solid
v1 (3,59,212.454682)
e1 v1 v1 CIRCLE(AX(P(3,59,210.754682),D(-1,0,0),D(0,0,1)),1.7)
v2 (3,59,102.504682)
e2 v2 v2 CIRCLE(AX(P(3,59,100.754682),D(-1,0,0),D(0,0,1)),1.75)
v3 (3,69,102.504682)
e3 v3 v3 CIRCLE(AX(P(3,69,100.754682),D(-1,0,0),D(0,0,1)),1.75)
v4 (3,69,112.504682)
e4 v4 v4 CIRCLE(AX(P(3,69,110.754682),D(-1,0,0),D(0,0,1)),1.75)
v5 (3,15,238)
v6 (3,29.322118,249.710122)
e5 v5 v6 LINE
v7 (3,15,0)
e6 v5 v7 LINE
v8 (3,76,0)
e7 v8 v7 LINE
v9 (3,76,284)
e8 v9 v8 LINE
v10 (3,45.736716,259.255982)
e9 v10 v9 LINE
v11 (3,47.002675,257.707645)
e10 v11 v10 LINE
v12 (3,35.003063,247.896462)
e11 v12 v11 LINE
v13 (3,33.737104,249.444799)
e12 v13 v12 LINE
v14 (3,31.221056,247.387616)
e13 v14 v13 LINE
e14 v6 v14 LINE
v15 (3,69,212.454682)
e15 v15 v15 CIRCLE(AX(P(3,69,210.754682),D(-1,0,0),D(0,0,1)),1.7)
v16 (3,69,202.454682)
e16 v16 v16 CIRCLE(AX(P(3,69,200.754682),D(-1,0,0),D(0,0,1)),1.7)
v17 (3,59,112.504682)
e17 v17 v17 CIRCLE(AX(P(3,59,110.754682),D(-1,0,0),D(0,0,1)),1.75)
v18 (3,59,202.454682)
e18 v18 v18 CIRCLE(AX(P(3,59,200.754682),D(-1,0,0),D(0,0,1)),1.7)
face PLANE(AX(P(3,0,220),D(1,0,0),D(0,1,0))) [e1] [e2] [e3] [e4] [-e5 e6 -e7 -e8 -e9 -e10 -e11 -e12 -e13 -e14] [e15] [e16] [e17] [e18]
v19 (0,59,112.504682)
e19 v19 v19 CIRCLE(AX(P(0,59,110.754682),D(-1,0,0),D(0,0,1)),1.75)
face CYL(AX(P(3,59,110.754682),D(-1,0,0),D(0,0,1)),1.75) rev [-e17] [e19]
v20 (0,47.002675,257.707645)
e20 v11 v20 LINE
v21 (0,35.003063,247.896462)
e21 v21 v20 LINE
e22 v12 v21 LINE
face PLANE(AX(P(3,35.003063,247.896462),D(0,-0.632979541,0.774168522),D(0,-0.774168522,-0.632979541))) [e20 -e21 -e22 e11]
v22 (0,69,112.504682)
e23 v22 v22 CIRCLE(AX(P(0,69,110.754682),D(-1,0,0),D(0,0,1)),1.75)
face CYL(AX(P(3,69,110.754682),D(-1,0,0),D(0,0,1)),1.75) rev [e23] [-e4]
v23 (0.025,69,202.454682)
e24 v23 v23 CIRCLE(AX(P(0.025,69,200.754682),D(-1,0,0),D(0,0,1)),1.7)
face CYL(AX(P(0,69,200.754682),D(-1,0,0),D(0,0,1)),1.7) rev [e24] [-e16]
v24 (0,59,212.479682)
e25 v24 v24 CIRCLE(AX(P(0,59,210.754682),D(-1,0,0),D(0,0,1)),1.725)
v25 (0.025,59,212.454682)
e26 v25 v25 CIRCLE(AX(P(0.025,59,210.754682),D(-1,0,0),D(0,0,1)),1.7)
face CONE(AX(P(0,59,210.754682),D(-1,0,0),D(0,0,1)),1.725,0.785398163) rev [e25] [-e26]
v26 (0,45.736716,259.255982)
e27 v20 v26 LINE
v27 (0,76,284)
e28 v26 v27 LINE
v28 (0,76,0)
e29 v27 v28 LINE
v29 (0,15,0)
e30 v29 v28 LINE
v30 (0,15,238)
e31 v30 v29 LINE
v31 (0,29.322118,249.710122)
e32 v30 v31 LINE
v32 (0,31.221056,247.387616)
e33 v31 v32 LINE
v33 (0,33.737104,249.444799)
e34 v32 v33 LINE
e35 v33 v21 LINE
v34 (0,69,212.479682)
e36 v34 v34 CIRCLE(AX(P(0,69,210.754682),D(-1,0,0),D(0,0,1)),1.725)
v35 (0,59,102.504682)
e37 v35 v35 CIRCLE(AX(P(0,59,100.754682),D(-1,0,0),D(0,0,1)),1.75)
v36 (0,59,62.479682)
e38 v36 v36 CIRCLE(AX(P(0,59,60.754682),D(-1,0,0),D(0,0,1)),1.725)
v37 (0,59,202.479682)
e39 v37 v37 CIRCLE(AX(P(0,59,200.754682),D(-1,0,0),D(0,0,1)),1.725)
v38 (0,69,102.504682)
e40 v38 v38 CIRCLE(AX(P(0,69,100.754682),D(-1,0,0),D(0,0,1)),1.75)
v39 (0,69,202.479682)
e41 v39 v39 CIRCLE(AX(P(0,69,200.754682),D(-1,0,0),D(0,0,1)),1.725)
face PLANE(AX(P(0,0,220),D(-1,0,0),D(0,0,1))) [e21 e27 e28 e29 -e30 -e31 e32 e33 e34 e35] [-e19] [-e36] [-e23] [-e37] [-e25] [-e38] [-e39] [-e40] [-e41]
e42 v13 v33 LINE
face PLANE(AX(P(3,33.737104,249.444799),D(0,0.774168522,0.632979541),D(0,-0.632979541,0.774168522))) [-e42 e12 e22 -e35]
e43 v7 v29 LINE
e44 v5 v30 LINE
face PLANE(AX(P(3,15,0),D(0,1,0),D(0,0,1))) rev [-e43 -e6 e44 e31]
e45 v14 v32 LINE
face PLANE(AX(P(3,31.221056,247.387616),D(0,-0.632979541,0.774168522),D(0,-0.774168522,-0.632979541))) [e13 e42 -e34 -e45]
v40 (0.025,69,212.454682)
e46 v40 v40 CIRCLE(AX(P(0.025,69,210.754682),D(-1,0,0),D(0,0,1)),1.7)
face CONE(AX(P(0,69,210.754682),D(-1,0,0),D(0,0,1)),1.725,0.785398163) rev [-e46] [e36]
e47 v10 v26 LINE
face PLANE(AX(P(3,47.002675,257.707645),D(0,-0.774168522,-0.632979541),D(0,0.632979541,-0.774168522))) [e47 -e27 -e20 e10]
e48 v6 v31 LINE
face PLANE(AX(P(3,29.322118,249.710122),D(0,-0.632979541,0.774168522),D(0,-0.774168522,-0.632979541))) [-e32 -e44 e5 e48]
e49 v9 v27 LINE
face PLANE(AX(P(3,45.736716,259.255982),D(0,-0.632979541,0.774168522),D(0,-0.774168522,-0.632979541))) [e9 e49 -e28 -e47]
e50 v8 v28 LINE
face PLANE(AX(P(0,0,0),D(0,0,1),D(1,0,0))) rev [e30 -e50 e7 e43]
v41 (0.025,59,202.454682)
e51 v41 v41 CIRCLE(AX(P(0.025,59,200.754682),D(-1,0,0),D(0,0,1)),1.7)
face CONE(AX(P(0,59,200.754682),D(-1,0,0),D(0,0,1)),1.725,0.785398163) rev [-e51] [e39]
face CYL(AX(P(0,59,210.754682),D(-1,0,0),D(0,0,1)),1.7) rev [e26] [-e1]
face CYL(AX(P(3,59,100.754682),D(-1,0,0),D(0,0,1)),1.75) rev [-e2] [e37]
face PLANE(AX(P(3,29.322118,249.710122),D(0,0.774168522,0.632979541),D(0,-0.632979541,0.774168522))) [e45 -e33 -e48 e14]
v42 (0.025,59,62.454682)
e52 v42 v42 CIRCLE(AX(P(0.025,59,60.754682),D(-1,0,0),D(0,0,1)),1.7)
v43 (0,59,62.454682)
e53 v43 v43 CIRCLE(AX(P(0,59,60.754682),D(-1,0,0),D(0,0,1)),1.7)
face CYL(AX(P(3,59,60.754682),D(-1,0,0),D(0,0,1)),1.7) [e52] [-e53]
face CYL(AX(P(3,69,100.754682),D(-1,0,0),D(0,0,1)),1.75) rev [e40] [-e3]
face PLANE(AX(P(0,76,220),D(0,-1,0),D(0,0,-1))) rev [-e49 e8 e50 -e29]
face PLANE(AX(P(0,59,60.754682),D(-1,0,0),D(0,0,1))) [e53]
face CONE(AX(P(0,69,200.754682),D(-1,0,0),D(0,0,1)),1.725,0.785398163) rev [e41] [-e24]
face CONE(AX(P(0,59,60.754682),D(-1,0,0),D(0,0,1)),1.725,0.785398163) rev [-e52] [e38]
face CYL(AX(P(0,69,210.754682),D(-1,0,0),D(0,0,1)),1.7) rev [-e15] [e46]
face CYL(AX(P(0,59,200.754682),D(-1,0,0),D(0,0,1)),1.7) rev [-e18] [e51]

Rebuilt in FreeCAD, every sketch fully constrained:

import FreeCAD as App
import Part
import Sketcher

V = App.Vector

doc = App.newDocument("Part")
body = doc.addObject("PartDesign::Body", "Body")

sketch1 = body.newObject("Sketcher::SketchObject", "Sketch")
sketch1.AttachmentSupport = (doc.getObject("XY_Plane"), [""])
sketch1.MapMode = "FlatFace"
sketch1.addGeometry(Part.LineSegment(V(0, 76, 0), V(0, 0, 0)), False)
sketch1.addGeometry(Part.LineSegment(V(0, 0, 0), V(3, 0, 0)), False)
sketch1.addGeometry(Part.LineSegment(V(3, 0, 0), V(3, 76, 0)), False)
sketch1.addGeometry(Part.LineSegment(V(3, 76, 0), V(0, 76, 0)), False)
sketch1.addConstraint(Sketcher.Constraint("Coincident", 0, 2, 1, 1))
sketch1.addConstraint(Sketcher.Constraint("Coincident", 1, 2, 2, 1))
sketch1.addConstraint(Sketcher.Constraint("Coincident", 2, 2, 3, 1))
sketch1.addConstraint(Sketcher.Constraint("Coincident", 3, 2, 0, 1))
sketch1.addConstraint(Sketcher.Constraint("Vertical", 0))
sketch1.addConstraint(Sketcher.Constraint("Horizontal", 1))
sketch1.addConstraint(Sketcher.Constraint("Vertical", 2))
sketch1.addConstraint(Sketcher.Constraint("Horizontal", 3))
sketch1.addConstraint(Sketcher.Constraint("Coincident", 0, 2, -1, 1))
sketch1.addConstraint(Sketcher.Constraint("DistanceX", 1, 1, 1, 2, 3.0))
sketch1.addConstraint(Sketcher.Constraint("DistanceY", 0, 2, 0, 1, 76.0))
pad1 = body.newObject("PartDesign::Pad", "Pad")
pad1.Profile = sketch1
pad1.Length = 220

sketch2 = body.newObject("Sketcher::SketchObject", "Sketch001")
sketch2.AttachmentSupport = (doc.getObject("YZ_Plane"), [""])
sketch2.MapMode = "FlatFace"
sketch2.addGeometry(Part.Circle(V(59, 50.754682, 0), V(0, 0, 1), 1.7), False)
sketch2.addGeometry(Part.Circle(V(59, 60.754682, 0), V(0, 0, 1), 1.7), False)
sketch2.addGeometry(Part.Circle(V(69, 60.754682, 0), V(0, 0, 1), 1.7), False)
sketch2.addGeometry(Part.Circle(V(69, 50.754682, 0), V(0, 0, 1), 1.7), False)
sketch2.addGeometry(Part.Circle(V(59, 200.754682, 0), V(0, 0, 1), 1.7), False)
sketch2.addGeometry(Part.Circle(V(69, 200.754682, 0), V(0, 0, 1), 1.7), False)
sketch2.addGeometry(Part.Circle(V(59, 210.754682, 0), V(0, 0, 1), 1.7), False)
sketch2.addGeometry(Part.Circle(V(69, 210.754682, 0), V(0, 0, 1), 1.7), False)
sketch2.addConstraint(Sketcher.Constraint("Equal", 0, 1))
sketch2.addConstraint(Sketcher.Constraint("Equal", 1, 2))
sketch2.addConstraint(Sketcher.Constraint("Equal", 2, 3))
sketch2.addConstraint(Sketcher.Constraint("Equal", 3, 4))
sketch2.addConstraint(Sketcher.Constraint("Equal", 4, 5))
sketch2.addConstraint(Sketcher.Constraint("Equal", 5, 6))
sketch2.addConstraint(Sketcher.Constraint("Equal", 6, 7))
sketch2.addConstraint(Sketcher.Constraint("Horizontal", 1, 3, 2, 3))
sketch2.addConstraint(Sketcher.Constraint("Horizontal", 0, 3, 3, 3))
sketch2.addConstraint(Sketcher.Constraint("Horizontal", 4, 3, 5, 3))
sketch2.addConstraint(Sketcher.Constraint("Horizontal", 6, 3, 7, 3))
sketch2.addConstraint(Sketcher.Constraint("Vertical", 0, 3, 1, 3))
sketch2.addConstraint(Sketcher.Constraint("Vertical", 2, 3, 3, 3))
sketch2.addConstraint(Sketcher.Constraint("Vertical", 1, 3, 4, 3))
sketch2.addConstraint(Sketcher.Constraint("Vertical", 3, 3, 5, 3))
sketch2.addConstraint(Sketcher.Constraint("Vertical", 4, 3, 6, 3))
sketch2.addConstraint(Sketcher.Constraint("Vertical", 5, 3, 7, 3))
sketch2.addConstraint(Sketcher.Constraint("Diameter", 0, 3.4))
sketch2.addConstraint(Sketcher.Constraint("DistanceX", -1, 1, 0, 3, 59.0))
sketch2.addConstraint(Sketcher.Constraint("DistanceX", -1, 1, 2, 3, 69.0))
sketch2.addConstraint(Sketcher.Constraint("DistanceY", 0, 3, 1, 3, 10.0))
sketch2.addConstraint(Sketcher.Constraint("DistanceY", 1, 3, 4, 3, 140.0))
sketch2.addConstraint(Sketcher.Constraint("DistanceY", 4, 3, 6, 3, 10.0))
sketch2.addConstraint(Sketcher.Constraint("DistanceY", -1, 1, 0, 3, 50.754682))
doc.recompute()
hole = body.newObject("PartDesign::Hole", "Hole")
hole.Profile = sketch2
hole.ThreadType = "None"
hole.Diameter = 3.4
hole.DepthType = "ThroughAll"
hole.HoleCutType = "Countersink"
hole.HoleCutDiameter = 3.45
hole.HoleCutCountersinkAngle = 90
hole.Reversed = True

sketch3 = body.newObject("Sketcher::SketchObject", "Sketch002")
sketch3.AttachmentSupport = (doc.getObject("YZ_Plane"), [""])
sketch3.MapMode = "FlatFace"
sketch3.addGeometry(Part.LineSegment(V(15, 0, 0), V(0, 0, 0)), False)
sketch3.addGeometry(Part.LineSegment(V(0, 0, 0), V(0, 220, 0)), False)
sketch3.addGeometry(Part.LineSegment(V(0, 220, 0), V(15, 220, 0)), False)
sketch3.addGeometry(Part.LineSegment(V(15, 220, 0), V(15, 0, 0)), False)
sketch3.addConstraint(Sketcher.Constraint("Coincident", 0, 2, 1, 1))
sketch3.addConstraint(Sketcher.Constraint("Coincident", 1, 2, 2, 1))
sketch3.addConstraint(Sketcher.Constraint("Coincident", 2, 2, 3, 1))
sketch3.addConstraint(Sketcher.Constraint("Coincident", 3, 2, 0, 1))
sketch3.addConstraint(Sketcher.Constraint("Horizontal", 0))
sketch3.addConstraint(Sketcher.Constraint("Vertical", 1))
sketch3.addConstraint(Sketcher.Constraint("Horizontal", 2))
sketch3.addConstraint(Sketcher.Constraint("Vertical", 3))
sketch3.addConstraint(Sketcher.Constraint("Coincident", 0, 2, -1, 1))
sketch3.addConstraint(Sketcher.Constraint("DistanceX", 0, 2, 0, 1, 15.0))
sketch3.addConstraint(Sketcher.Constraint("DistanceY", 1, 1, 1, 2, 220.0))
pocket1 = body.newObject("PartDesign::Pocket", "Pocket")
pocket1.Profile = sketch3
pocket1.Type = "ThroughAll"
pocket1.Reversed = True

sketch4 = body.newObject("Sketcher::SketchObject", "Sketch003")
sketch4.AttachmentSupport = (doc.getObject("YZ_Plane"), [""])
sketch4.MapMode = "FlatFace"
sketch4.addGeometry(Part.Circle(V(69, 110.754682, 0), V(0, 0, 1), 1.75), False)
sketch4.addGeometry(Part.Circle(V(69, 100.754682, 0), V(0, 0, 1), 1.75), False)
sketch4.addGeometry(Part.Circle(V(59, 100.754682, 0), V(0, 0, 1), 1.75), False)
sketch4.addGeometry(Part.Circle(V(59, 110.754682, 0), V(0, 0, 1), 1.75), False)
sketch4.addConstraint(Sketcher.Constraint("Equal", 0, 1))
sketch4.addConstraint(Sketcher.Constraint("Equal", 1, 2))
sketch4.addConstraint(Sketcher.Constraint("Equal", 2, 3))
sketch4.addConstraint(Sketcher.Constraint("Horizontal", 1, 3, 2, 3))
sketch4.addConstraint(Sketcher.Constraint("Horizontal", 0, 3, 3, 3))
sketch4.addConstraint(Sketcher.Constraint("Vertical", 0, 3, 1, 3))
sketch4.addConstraint(Sketcher.Constraint("Vertical", 2, 3, 3, 3))
sketch4.addConstraint(Sketcher.Constraint("Diameter", 0, 3.5))
sketch4.addConstraint(Sketcher.Constraint("DistanceX", -1, 1, 0, 3, 69.0))
sketch4.addConstraint(Sketcher.Constraint("DistanceX", -1, 1, 2, 3, 59.0))
sketch4.addConstraint(Sketcher.Constraint("DistanceY", 1, 3, 0, 3, 10.0))
sketch4.addConstraint(Sketcher.Constraint("DistanceY", -1, 1, 0, 3, 110.754682))
pocket2 = body.newObject("PartDesign::Pocket", "Pocket001")
pocket2.Profile = sketch4
pocket2.Type = "ThroughAll"
pocket2.Reversed = True

sketch5 = body.newObject("Sketcher::SketchObject", "Sketch004")
sketch5.AttachmentSupport = (doc.getObject("YZ_Plane"), [""])
sketch5.MapMode = "FlatFace"
sketch5.AttachmentOffset = App.Placement(V(0, 0, 3), App.Rotation())
sketch5.addGeometry(Part.Circle(V(59, 50.754682, 0), V(0, 0, 1), 1.725), False)
sketch5.addGeometry(Part.Circle(V(59, 60.754682, 0), V(0, 0, 1), 1.7), False)
sketch5.addGeometry(Part.Circle(V(69, 60.754682, 0), V(0, 0, 1), 1.725), False)
sketch5.addGeometry(Part.Circle(V(69, 50.754682, 0), V(0, 0, 1), 1.725), False)
sketch5.addConstraint(Sketcher.Constraint("Equal", 0, 2))
sketch5.addConstraint(Sketcher.Constraint("Equal", 2, 3))
sketch5.addConstraint(Sketcher.Constraint("Horizontal", 1, 3, 2, 3))
sketch5.addConstraint(Sketcher.Constraint("Horizontal", 0, 3, 3, 3))
sketch5.addConstraint(Sketcher.Constraint("Vertical", 0, 3, 1, 3))
sketch5.addConstraint(Sketcher.Constraint("Vertical", 2, 3, 3, 3))
sketch5.addConstraint(Sketcher.Constraint("Diameter", 1, 3.4))
sketch5.addConstraint(Sketcher.Constraint("Diameter", 0, 3.45))
sketch5.addConstraint(Sketcher.Constraint("DistanceX", -1, 1, 0, 3, 59.0))
sketch5.addConstraint(Sketcher.Constraint("DistanceX", -1, 1, 2, 3, 69.0))
sketch5.addConstraint(Sketcher.Constraint("DistanceY", 0, 3, 1, 3, 10.0))
sketch5.addConstraint(Sketcher.Constraint("DistanceY", -1, 1, 0, 3, 50.754682))
pad2 = body.newObject("PartDesign::Pad", "Pad001")
pad2.Profile = sketch5
pad2.Length = 3
pad2.Reversed = True

sketch6 = body.newObject("Sketcher::SketchObject", "Sketch005")
sketch6.AttachmentSupport = (doc.getObject("YZ_Plane"), [""])
sketch6.MapMode = "FlatFace"
sketch6.addGeometry(Part.LineSegment(V(76, 284, 0), V(76, 220, 0)), False)
sketch6.addGeometry(Part.LineSegment(V(76, 220, 0), V(15, 220, 0)), False)
sketch6.addGeometry(Part.LineSegment(V(15, 220, 0), V(15, 238, 0)), False)
sketch6.addGeometry(Part.LineSegment(V(15, 238, 0), V(29.322118, 249.710122, 0)), False)
sketch6.addGeometry(Part.LineSegment(V(29.322118, 249.710122, 0), V(31.221056, 247.387616, 0)), False)
sketch6.addGeometry(Part.LineSegment(V(31.221056, 247.387616, 0), V(33.737104, 249.444799, 0)), False)
sketch6.addGeometry(Part.LineSegment(V(33.737104, 249.444799, 0), V(35.003063, 247.896462, 0)), False)
sketch6.addGeometry(Part.LineSegment(V(35.003063, 247.896462, 0), V(47.002675, 257.707645, 0)), False)
sketch6.addGeometry(Part.LineSegment(V(47.002675, 257.707645, 0), V(45.736716, 259.255982, 0)), False)
sketch6.addGeometry(Part.LineSegment(V(45.736716, 259.255982, 0), V(76, 284, 0)), False)
sketch6.addConstraint(Sketcher.Constraint("Coincident", 0, 2, 1, 1))
sketch6.addConstraint(Sketcher.Constraint("Coincident", 1, 2, 2, 1))
sketch6.addConstraint(Sketcher.Constraint("Coincident", 2, 2, 3, 1))
sketch6.addConstraint(Sketcher.Constraint("Coincident", 3, 2, 4, 1))
sketch6.addConstraint(Sketcher.Constraint("Coincident", 4, 2, 5, 1))
sketch6.addConstraint(Sketcher.Constraint("Coincident", 5, 2, 6, 1))
sketch6.addConstraint(Sketcher.Constraint("Coincident", 6, 2, 7, 1))
sketch6.addConstraint(Sketcher.Constraint("Coincident", 7, 2, 8, 1))
sketch6.addConstraint(Sketcher.Constraint("Coincident", 8, 2, 9, 1))
sketch6.addConstraint(Sketcher.Constraint("Coincident", 9, 2, 0, 1))
sketch6.addConstraint(Sketcher.Constraint("Vertical", 0))
sketch6.addConstraint(Sketcher.Constraint("Horizontal", 1))
sketch6.addConstraint(Sketcher.Constraint("Vertical", 2))
sketch6.addConstraint(Sketcher.Constraint("Perpendicular", 3, 4))
sketch6.addConstraint(Sketcher.Constraint("Perpendicular", 4, 5))
sketch6.addConstraint(Sketcher.Constraint("Perpendicular", 5, 6))
sketch6.addConstraint(Sketcher.Constraint("Perpendicular", 6, 7))
sketch6.addConstraint(Sketcher.Constraint("Perpendicular", 7, 8))
sketch6.addConstraint(Sketcher.Constraint("Perpendicular", 8, 9))
sketch6.addConstraint(Sketcher.Constraint("Equal", 6, 8))
sketch6.addConstraint(Sketcher.Constraint("DistanceX", 1, 2, 1, 1, 61.0))
sketch6.addConstraint(Sketcher.Constraint("DistanceY", 0, 2, 0, 1, 64.0))
sketch6.addConstraint(Sketcher.Constraint("DistanceY", 2, 1, 2, 2, 18.0))
sketch6.addConstraint(Sketcher.Constraint("Distance", 4, 3.0))
sketch6.addConstraint(Sketcher.Constraint("Distance", 6, 2.0))
sketch6.addConstraint(Sketcher.Constraint("DistanceX", -1, 1, 0, 2, 76.0))
sketch6.addConstraint(Sketcher.Constraint("DistanceY", -1, 1, 0, 2, 220.0))
sketch6.addConstraint(Sketcher.Constraint("Distance", 3, 18.5))
sketch6.addConstraint(Sketcher.Constraint("Distance", 7, 15.5))
sketch6.addConstraint(Sketcher.Constraint("Distance", 5, 3.25))
pad3 = body.newObject("PartDesign::Pad", "Pad002")
pad3.Profile = sketch6
pad3.Length = 3

doc.recompute()
